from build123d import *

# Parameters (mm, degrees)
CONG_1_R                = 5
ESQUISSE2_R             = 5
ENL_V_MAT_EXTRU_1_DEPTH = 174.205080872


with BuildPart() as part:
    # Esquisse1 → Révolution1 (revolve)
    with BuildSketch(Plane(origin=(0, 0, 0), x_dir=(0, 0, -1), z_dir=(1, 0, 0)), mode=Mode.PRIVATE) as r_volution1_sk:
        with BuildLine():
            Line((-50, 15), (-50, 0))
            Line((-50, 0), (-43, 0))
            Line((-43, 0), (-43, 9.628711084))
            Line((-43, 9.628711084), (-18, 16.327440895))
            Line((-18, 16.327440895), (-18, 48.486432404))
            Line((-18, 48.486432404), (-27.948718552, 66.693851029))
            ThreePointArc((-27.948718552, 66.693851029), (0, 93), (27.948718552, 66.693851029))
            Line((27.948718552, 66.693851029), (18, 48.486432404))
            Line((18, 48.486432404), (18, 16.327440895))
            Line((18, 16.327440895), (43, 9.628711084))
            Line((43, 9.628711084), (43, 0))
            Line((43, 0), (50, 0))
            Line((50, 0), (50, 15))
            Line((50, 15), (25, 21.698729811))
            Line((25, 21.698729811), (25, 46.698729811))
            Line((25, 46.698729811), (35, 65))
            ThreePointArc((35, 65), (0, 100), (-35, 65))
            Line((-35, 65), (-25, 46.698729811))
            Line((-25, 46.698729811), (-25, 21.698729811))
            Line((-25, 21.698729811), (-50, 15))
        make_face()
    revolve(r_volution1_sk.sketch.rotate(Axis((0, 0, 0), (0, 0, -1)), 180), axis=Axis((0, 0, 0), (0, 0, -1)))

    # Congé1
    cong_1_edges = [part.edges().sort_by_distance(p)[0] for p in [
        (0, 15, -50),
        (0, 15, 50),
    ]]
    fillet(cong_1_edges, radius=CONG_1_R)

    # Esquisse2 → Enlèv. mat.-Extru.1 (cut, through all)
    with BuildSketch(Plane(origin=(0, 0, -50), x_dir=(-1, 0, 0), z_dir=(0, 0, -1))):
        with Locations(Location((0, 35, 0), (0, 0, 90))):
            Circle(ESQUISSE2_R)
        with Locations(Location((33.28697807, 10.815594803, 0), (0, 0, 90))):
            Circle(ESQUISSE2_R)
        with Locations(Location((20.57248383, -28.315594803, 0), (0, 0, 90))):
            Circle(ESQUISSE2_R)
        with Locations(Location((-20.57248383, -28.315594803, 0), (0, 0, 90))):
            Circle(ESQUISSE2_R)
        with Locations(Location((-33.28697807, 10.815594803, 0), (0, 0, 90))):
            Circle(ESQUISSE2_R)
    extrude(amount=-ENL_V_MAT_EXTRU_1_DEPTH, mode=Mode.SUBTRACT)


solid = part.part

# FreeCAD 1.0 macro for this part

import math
import FreeCAD as App
import Part
import Sketcher
Q = App.Units.Quantity


def edges_at(feature, points):
    """Names of the edges that pass closest to the given points."""
    edges = feature.Shape.Edges
    near = lambda p: min(range(len(edges)), key=lambda i: edges[i].distToShape(Part.Vertex(*p))[0])
    return sorted({f"Edge{near(p) + 1}" for p in points})

doc = App.newDocument("Part")
body = doc.addObject("PartDesign::Body", "Body")

# Sketch on YZ plane
sketch1 = body.newObject("Sketcher::SketchObject", "Sketch")
sketch1.AttachmentSupport = (doc.getObject("YZ_Plane"), [""])
sketch1.MapMode = "FlatFace"
sketch1.addGeometry([
    Part.LineSegment(App.Vector(15, 50, 0), App.Vector(0, 50, 0)),  # 0
    Part.LineSegment(App.Vector(0, 50, 0), App.Vector(0, 43, 0)),  # 1
    Part.LineSegment(App.Vector(0, 43, 0), App.Vector(9.628711, 43, 0)),  # 2
    Part.LineSegment(App.Vector(9.628711, 43, 0), App.Vector(16.327441, 18, 0)),  # 3
    Part.LineSegment(App.Vector(16.327441, 18, 0), App.Vector(48.486432, 18, 0)),  # 4
    Part.LineSegment(App.Vector(48.486432, 18, 0), App.Vector(66.693851, 27.948719, 0)),  # 5
    Part.ArcOfCircle(Part.Circle(App.Vector(65, 0, 0), App.Vector(0, 0, 1), 28), math.radians(-86.531793), math.radians(86.531793)),  # 6
    Part.LineSegment(App.Vector(66.693851, -27.948719, 0), App.Vector(48.486432, -18, 0)),  # 7
    Part.LineSegment(App.Vector(48.486432, -18, 0), App.Vector(16.327441, -18, 0)),  # 8
    Part.LineSegment(App.Vector(16.327441, -18, 0), App.Vector(9.628711, -43, 0)),  # 9
    Part.LineSegment(App.Vector(9.628711, -43, 0), App.Vector(0, -43, 0)),  # 10
    Part.LineSegment(App.Vector(0, -43, 0), App.Vector(0, -50, 0)),  # 11
    Part.LineSegment(App.Vector(0, -50, 0), App.Vector(15, -50, 0)),  # 12
    Part.LineSegment(App.Vector(15, -50, 0), App.Vector(21.69873, -25, 0)),  # 13
    Part.LineSegment(App.Vector(21.69873, -25, 0), App.Vector(46.69873, -25, 0)),  # 14
    Part.LineSegment(App.Vector(46.69873, -25, 0), App.Vector(65, -35, 0)),  # 15
    Part.ArcOfCircle(Part.Circle(App.Vector(65, 0, 0), App.Vector(0, 0, 1), 35), math.radians(-90), math.radians(90)),  # 16
    Part.LineSegment(App.Vector(65, 35, 0), App.Vector(46.69873, 25, 0)),  # 17
    Part.LineSegment(App.Vector(46.69873, 25, 0), App.Vector(21.69873, 25, 0)),  # 18
    Part.LineSegment(App.Vector(21.69873, 25, 0), App.Vector(15, 50, 0)),  # 19
], False)
sketch1.addConstraint([
    Sketcher.Constraint("Coincident", 0, 2, 1, 1),
    Sketcher.Constraint("Coincident", 1, 2, 2, 1),
    Sketcher.Constraint("Coincident", 2, 2, 3, 1),
    Sketcher.Constraint("Coincident", 3, 2, 4, 1),
    Sketcher.Constraint("Coincident", 4, 2, 5, 1),
    Sketcher.Constraint("Coincident", 5, 2, 6, 2),
    Sketcher.Constraint("Coincident", 6, 1, 7, 1),
    Sketcher.Constraint("Coincident", 7, 2, 8, 1),
    Sketcher.Constraint("Coincident", 8, 2, 9, 1),
    Sketcher.Constraint("Coincident", 9, 2, 10, 1),
    Sketcher.Constraint("Coincident", 10, 2, 11, 1),
    Sketcher.Constraint("Coincident", 11, 2, 12, 1),
    Sketcher.Constraint("Coincident", 12, 2, 13, 1),
    Sketcher.Constraint("Coincident", 13, 2, 14, 1),
    Sketcher.Constraint("Coincident", 14, 2, 15, 1),
    Sketcher.Constraint("Coincident", 15, 2, 16, 1),
    Sketcher.Constraint("Coincident", 16, 2, 17, 1),
    Sketcher.Constraint("Coincident", 17, 2, 18, 1),
    Sketcher.Constraint("Coincident", 18, 2, 19, 1),
    Sketcher.Constraint("Coincident", 19, 2, 0, 1),
    Sketcher.Constraint("Horizontal", 0),
    Sketcher.Constraint("Vertical", 1),
    Sketcher.Constraint("Horizontal", 2),
    Sketcher.Constraint("Horizontal", 4),
    Sketcher.Constraint("Horizontal", 8),
    Sketcher.Constraint("Horizontal", 10),
    Sketcher.Constraint("Vertical", 11),
    Sketcher.Constraint("Horizontal", 12),
    Sketcher.Constraint("Horizontal", 14),
    Sketcher.Constraint("Horizontal", 18),
    Sketcher.Constraint("Coincident", 16, 3, 6, 3),
    Sketcher.Constraint("Symmetric", 1, 2, 10, 2, -1, 1),
    Sketcher.Constraint("Symmetric", 5, 2, 6, 1, -1),
    Sketcher.Constraint("Symmetric", 4, 2, 7, 2, -1),
    Sketcher.Constraint("Symmetric", 0, 2, 11, 2, -1),
    Sketcher.Constraint("Symmetric", 14, 2, 17, 2, -1),
    Sketcher.Constraint("Parallel", 9, 13),
    Sketcher.Constraint("Parallel", 7, 15),
    Sketcher.Constraint("Parallel", 5, 17),
    Sketcher.Constraint("Parallel", 3, 19),
    Sketcher.Constraint("Vertical", 3, 2, 8, 2),
    Sketcher.Constraint("Vertical", 2, 2, 9, 2),
    Sketcher.Constraint("Vertical", 16, 3, 15, 2),
    Sketcher.Constraint("Vertical", 13, 2, 18, 2),
    Sketcher.Constraint("Equal", 9, 13),
    Sketcher.Constraint("Radius", 6, Q("28 mm")),
    Sketcher.Constraint("Radius", 16, Q("35 mm")),
    Sketcher.Constraint("DistanceX", 0, 2, 0, 1, Q("15 mm")),
    Sketcher.Constraint("DistanceX", 14, 1, 14, 2, Q("25 mm")),
    Sketcher.Constraint("DistanceY", 1, 2, 1, 1, Q("7 mm")),
    Sketcher.Constraint("Angle", 3, Q("-75 deg")),
    Sketcher.Constraint("DistanceX", -1, 1, 6, 3, Q("65 mm")),
    Sketcher.Constraint("DistanceY", -1, 1, 0, 2, Q("50 mm")),
    Sketcher.Constraint("DistanceY", -1, 1, 3, 2, Q("18 mm")),
    Sketcher.Constraint("DistanceX", 2, 1, 2, 2, Q("9.628711 mm")),
    Sketcher.Constraint("DistanceX", 4, 1, 4, 2, Q("32.158992 mm")),
])
revolution = body.newObject("PartDesign::Revolution", "Revolution")
revolution.Profile = sketch1
revolution.ReferenceAxis = (sketch1, ["V_Axis"])
revolution.Angle = 360
doc.recompute()

fillet = body.newObject("PartDesign::Fillet", "Fillet")
fillet.Base = (revolution, edges_at(revolution, [(0, 15, -50), (0, 15, 50)]))
fillet.Radius = 5

# Sketch on XY plane
sketch2 = body.newObject("Sketcher::SketchObject", "Sketch001")
sketch2.AttachmentSupport = (doc.getObject("XY_Plane"), [""])
sketch2.MapMode = "FlatFace"
sketch2.AttachmentOffset = App.Placement(App.Vector(0, 0, -50), App.Rotation())
sketch2.addGeometry([
    Part.Circle(App.Vector(0, 35, 0), App.Vector(0, 0, 1), 5),  # 0
    Part.Circle(App.Vector(-33.286978, 10.815595, 0), App.Vector(0, 0, 1), 5),  # 1
    Part.Circle(App.Vector(-20.572484, -28.315595, 0), App.Vector(0, 0, 1), 5),  # 2
    Part.Circle(App.Vector(20.572484, -28.315595, 0), App.Vector(0, 0, 1), 5),  # 3
    Part.Circle(App.Vector(33.286978, 10.815595, 0), App.Vector(0, 0, 1), 5),  # 4
], False)
sketch2.addConstraint([
    Sketcher.Constraint("Equal", 0, 1),
    Sketcher.Constraint("Equal", 1, 2),
    Sketcher.Constraint("Equal", 2, 3),
    Sketcher.Constraint("Equal", 3, 4),
    Sketcher.Constraint("Symmetric", 2, 3, 3, 3, -2),
    Sketcher.Constraint("Symmetric", 1, 3, 4, 3, -2),
    Sketcher.Constraint("PointOnObject", 0, 3, -2),
    Sketcher.Constraint("Diameter", 0, Q("10 mm")),
    Sketcher.Constraint("DistanceY", -1, 1, 0, 3, Q("35 mm")),
    Sketcher.Constraint("DistanceX", 1, 3, -1, 1, Q("33.286978 mm")),
    Sketcher.Constraint("DistanceY", 2, 3, 1, 3, Q("39.13119 mm")),
    Sketcher.Constraint("DistanceX", 1, 3, 3, 3, Q("53.859462 mm")),
    Sketcher.Constraint("DistanceY", -1, 1, 1, 3, Q("10.815595 mm")),
])
pocket1 = body.newObject("PartDesign::Pocket", "Pocket")
pocket1.Profile = sketch2
pocket1.Type = "ThroughAll"
pocket1.Reversed = True

doc.recompute()
